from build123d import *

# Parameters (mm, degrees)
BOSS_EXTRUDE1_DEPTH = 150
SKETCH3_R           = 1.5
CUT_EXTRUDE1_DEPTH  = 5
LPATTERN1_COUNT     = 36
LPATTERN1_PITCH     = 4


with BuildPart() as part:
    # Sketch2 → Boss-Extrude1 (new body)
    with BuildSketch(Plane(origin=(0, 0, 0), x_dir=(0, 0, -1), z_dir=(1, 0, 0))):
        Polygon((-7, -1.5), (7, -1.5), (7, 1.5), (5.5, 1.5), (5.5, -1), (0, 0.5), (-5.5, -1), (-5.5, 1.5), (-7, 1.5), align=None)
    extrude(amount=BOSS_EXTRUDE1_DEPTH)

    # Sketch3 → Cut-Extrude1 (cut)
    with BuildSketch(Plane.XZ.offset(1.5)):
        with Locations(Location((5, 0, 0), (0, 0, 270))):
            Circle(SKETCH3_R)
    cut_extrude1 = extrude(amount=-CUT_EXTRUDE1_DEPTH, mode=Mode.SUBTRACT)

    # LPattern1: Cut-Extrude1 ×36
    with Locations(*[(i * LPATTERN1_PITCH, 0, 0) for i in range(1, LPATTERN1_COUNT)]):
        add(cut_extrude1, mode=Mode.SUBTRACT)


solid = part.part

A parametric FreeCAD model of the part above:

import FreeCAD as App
import Part
import Sketcher
Q = App.Units.Quantity


def add_polygon(sketch, points):
    """Adds a closed chain of lines whose ends are joined by coincident constraints."""
    first, n = sketch.GeometryCount, len(points)
    for a, b in zip(points, points[1:] + points[:1]):
        sketch.addGeometry(Part.LineSegment(App.Vector(*a, 0), App.Vector(*b, 0)), False)
    for i in range(n):
        sketch.addConstraint(Sketcher.Constraint("Coincident", first + i, 2, first + (i + 1) % n, 1))

doc = App.newDocument("Part")
body = doc.addObject("PartDesign::Body", "Body")

sketch1 = body.newObject("Sketcher::SketchObject", "Sketch")
sketch1.AttachmentSupport = (doc.getObject("YZ_Plane"), [""])
sketch1.MapMode = "FlatFace"
add_polygon(sketch1, [(-1.5, 7), (-1.5, -7), (1.5, -7), (1.5, -5.5), (-1, -5.5), (0.5, 0), (-1, 5.5), (1.5, 5.5), (1.5, 7)])
sketch1.addConstraint([
    Sketcher.Constraint("Vertical", 0),
    Sketcher.Constraint("Horizontal", 1),
    Sketcher.Constraint("Vertical", 2),
    Sketcher.Constraint("Horizontal", 3),
    Sketcher.Constraint("Horizontal", 6),
    Sketcher.Constraint("Vertical", 7),
    Sketcher.Constraint("Horizontal", 8),
    Sketcher.Constraint("Symmetric", 0, 2, 7, 2, -1, 1),
    Sketcher.Constraint("Symmetric", 3, 2, 5, 2, -1),
    Sketcher.Constraint("PointOnObject", 4, 2, -1),
    Sketcher.Constraint("Vertical", 2, 2, 6, 2),
    Sketcher.Constraint("DistanceX", 1, 1, 1, 2, Q("3 mm")),
    Sketcher.Constraint("DistanceY", 0, 2, 0, 1, Q("14 mm")),
    Sketcher.Constraint("DistanceX", 3, 2, 3, 1, Q("2.5 mm")),
    Sketcher.Constraint("DistanceY", 2, 1, 2, 2, Q("1.5 mm")),
    Sketcher.Constraint("DistanceX", 4, 2, 2, 2, Q("1 mm")),
])
pad1 = body.newObject("PartDesign::Pad", "Pad")
pad1.Profile = sketch1
pad1.Length = 150

sketch2 = body.newObject("Sketcher::SketchObject", "Sketch001")
sketch2.AttachmentSupport = (doc.getObject("XZ_Plane"), [""])
sketch2.MapMode = "FlatFace"
sketch2.AttachmentOffset = App.Placement(App.Vector(0, 0, 1.5), App.Rotation())
sketch2.addGeometry(Part.Circle(App.Vector(5, 0, 0), App.Vector(0, 0, 1), 1.5), False)
sketch2.addConstraint([
    Sketcher.Constraint("PointOnObject", 0, 3, -1),
    Sketcher.Constraint("Diameter", 0, Q("3 mm")),
    Sketcher.Constraint("DistanceX", -1, 1, 0, 3, Q("5 mm")),
])
pocket1 = body.newObject("PartDesign::Pocket", "Pocket")
pocket1.Profile = sketch2
pocket1.Length = 5
doc.recompute()

linearpattern = body.newObject("PartDesign::LinearPattern", "LinearPattern")
linearpattern.Originals = [pocket1]
linearpattern.Direction = (doc.getObject("X_Axis"), [""])
linearpattern.Mode = "offset"
linearpattern.Offset = 4
linearpattern.Occurrences = 36
body.Tip = linearpattern

doc.recompute()
